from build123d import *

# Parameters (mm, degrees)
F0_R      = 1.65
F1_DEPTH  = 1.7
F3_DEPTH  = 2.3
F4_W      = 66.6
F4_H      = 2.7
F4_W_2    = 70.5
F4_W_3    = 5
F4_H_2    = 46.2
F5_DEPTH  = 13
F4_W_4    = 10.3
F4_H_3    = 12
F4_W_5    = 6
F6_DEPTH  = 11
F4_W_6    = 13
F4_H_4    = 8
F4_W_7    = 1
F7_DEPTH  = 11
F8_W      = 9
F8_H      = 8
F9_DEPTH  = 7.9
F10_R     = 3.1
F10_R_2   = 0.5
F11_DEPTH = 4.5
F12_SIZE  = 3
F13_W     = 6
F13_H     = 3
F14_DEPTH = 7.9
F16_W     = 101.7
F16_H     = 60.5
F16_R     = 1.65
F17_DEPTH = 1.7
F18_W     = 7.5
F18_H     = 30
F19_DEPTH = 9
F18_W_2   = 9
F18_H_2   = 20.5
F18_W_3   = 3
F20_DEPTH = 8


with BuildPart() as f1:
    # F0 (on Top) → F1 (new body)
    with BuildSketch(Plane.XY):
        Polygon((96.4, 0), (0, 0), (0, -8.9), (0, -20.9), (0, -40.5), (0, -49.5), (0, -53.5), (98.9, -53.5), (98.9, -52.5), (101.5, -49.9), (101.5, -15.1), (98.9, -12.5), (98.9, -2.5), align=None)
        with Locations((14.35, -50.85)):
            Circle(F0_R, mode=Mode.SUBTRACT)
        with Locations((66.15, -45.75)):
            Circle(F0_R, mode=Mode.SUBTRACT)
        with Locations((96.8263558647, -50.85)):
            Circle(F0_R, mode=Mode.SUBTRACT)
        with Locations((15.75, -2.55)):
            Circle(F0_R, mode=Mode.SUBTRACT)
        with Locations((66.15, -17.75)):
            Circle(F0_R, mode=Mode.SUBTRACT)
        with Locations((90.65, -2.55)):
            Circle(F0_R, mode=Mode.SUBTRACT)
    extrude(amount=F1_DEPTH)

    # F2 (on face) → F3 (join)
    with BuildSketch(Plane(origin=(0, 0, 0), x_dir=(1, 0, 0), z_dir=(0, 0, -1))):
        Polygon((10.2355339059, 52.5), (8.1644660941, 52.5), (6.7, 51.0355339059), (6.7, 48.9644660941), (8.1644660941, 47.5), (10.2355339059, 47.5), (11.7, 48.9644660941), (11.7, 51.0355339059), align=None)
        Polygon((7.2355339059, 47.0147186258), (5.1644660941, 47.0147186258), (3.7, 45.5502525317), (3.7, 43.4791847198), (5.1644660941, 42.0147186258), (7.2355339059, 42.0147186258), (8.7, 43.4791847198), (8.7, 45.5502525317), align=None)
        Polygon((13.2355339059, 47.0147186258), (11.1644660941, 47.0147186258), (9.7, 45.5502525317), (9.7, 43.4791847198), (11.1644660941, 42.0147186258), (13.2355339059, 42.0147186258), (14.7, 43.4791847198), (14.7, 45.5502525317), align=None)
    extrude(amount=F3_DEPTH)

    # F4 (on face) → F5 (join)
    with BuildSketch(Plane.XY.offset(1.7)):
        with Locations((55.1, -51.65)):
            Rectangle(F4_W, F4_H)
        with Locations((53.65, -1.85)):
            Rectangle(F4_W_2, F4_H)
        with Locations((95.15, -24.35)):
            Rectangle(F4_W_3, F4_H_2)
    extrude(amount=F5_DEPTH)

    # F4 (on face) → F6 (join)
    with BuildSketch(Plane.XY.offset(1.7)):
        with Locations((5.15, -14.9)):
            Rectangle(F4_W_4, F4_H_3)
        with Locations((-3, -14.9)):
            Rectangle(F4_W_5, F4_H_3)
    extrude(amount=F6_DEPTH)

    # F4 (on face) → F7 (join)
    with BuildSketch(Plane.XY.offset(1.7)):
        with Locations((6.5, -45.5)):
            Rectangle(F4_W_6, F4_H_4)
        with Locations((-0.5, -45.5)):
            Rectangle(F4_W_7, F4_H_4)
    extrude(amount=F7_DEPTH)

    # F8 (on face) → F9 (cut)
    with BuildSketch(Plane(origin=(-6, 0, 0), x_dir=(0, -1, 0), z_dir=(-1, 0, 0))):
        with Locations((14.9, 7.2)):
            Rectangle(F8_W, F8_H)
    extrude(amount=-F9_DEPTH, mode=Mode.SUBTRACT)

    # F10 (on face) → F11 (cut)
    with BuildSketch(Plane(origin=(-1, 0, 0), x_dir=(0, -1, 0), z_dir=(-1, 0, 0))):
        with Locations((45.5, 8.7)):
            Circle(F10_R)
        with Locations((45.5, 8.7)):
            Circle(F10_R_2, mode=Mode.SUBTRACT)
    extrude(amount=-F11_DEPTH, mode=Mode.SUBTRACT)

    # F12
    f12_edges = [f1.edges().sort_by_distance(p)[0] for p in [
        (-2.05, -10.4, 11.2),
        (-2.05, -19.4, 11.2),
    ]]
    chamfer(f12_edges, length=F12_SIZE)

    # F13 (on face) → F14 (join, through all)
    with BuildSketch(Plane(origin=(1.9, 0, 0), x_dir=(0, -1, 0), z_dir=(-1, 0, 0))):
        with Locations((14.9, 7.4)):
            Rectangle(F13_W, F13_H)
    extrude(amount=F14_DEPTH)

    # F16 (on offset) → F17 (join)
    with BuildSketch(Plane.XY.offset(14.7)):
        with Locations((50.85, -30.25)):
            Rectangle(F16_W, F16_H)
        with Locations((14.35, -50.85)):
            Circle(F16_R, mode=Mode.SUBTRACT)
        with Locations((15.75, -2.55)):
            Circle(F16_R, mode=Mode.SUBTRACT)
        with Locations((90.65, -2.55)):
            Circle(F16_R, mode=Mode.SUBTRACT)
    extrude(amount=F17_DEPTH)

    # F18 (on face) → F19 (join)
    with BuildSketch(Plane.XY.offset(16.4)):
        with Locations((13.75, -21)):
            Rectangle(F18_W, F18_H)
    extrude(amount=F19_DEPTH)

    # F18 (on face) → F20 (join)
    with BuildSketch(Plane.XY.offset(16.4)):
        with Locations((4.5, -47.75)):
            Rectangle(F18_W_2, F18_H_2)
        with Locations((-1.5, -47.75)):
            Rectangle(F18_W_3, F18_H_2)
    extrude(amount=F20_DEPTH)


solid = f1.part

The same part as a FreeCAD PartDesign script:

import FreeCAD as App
import Part
import Sketcher

V = App.Vector
Q = App.Units.Quantity


def edges_at(feature, points):
    """Names of the edges that pass closest to the given points."""
    edges = feature.Shape.Edges
    near = lambda p: min(range(len(edges)), key=lambda i: edges[i].distToShape(Part.Vertex(*p))[0])
    return sorted({f"Edge{near(p) + 1}" for p in points})

doc = App.newDocument("Part")
body = doc.addObject("PartDesign::Body", "Body")

# Sketch on XY plane
sketch1 = body.newObject("Sketcher::SketchObject", "Sketch")
sketch1.AttachmentSupport = (doc.getObject("XY_Plane"), [""])
sketch1.MapMode = "FlatFace"
sketch1.addGeometry([
    Part.LineSegment(V(96.4, 0, 0), V(0, 0, 0)),  # 0
    Part.LineSegment(V(0, 0, 0), V(0, -53.5, 0)),  # 1
    Part.LineSegment(V(0, -53.5, 0), V(98.9, -53.5, 0)),  # 2
    Part.LineSegment(V(98.9, -53.5, 0), V(98.9, -52.5, 0)),  # 3
    Part.LineSegment(V(98.9, -52.5, 0), V(101.5, -49.9, 0)),  # 4
    Part.LineSegment(V(101.5, -49.9, 0), V(101.5, -15.1, 0)),  # 5
    Part.LineSegment(V(101.5, -15.1, 0), V(98.9, -12.5, 0)),  # 6
    Part.LineSegment(V(98.9, -12.5, 0), V(98.9, -2.5, 0)),  # 7
    Part.LineSegment(V(98.9, -2.5, 0), V(96.4, 0, 0)),  # 8
    Part.Circle(V(14.3, -50.9, 0), V(0, 0, 1), 1.6),  # 9
    Part.Circle(V(66.2, -45.8, 0), V(0, 0, 1), 1.6),  # 10
    Part.Circle(V(96.8, -50.9, 0), V(0, 0, 1), 1.6),  # 11
    Part.Circle(V(15.8, -2.5, 0), V(0, 0, 1), 1.6),  # 12
    Part.Circle(V(66.2, -17.8, 0), V(0, 0, 1), 1.6),  # 13
    Part.Circle(V(90.7, -2.5, 0), V(0, 0, 1), 1.6),  # 14
], False)
sketch1.addConstraint([
    Sketcher.Constraint("Coincident", 0, 2, 1, 1),
    Sketcher.Constraint("Coincident", 1, 2, 2, 1),
    Sketcher.Constraint("Coincident", 2, 2, 3, 1),
    Sketcher.Constraint("Coincident", 3, 2, 4, 1),
    Sketcher.Constraint("Coincident", 4, 2, 5, 1),
    Sketcher.Constraint("Coincident", 5, 2, 6, 1),
    Sketcher.Constraint("Coincident", 6, 2, 7, 1),
    Sketcher.Constraint("Coincident", 7, 2, 8, 1),
    Sketcher.Constraint("Coincident", 8, 2, 0, 1),
    Sketcher.Constraint("Horizontal", 0),
    Sketcher.Constraint("Vertical", 1),
    Sketcher.Constraint("Horizontal", 2),
    Sketcher.Constraint("Vertical", 3),
    Sketcher.Constraint("Vertical", 5),
    Sketcher.Constraint("Vertical", 7),
    Sketcher.Constraint("Coincident", 0, 2, -1, 1),
    Sketcher.Constraint("Equal", 9, 10),
    Sketcher.Constraint("Equal", 10, 11),
    Sketcher.Constraint("Equal", 11, 12),
    Sketcher.Constraint("Equal", 12, 13),
    Sketcher.Constraint("Equal", 13, 14),
    Sketcher.Constraint("Perpendicular", 4, 6),
    Sketcher.Constraint("Parallel", 6, 8),
    Sketcher.Constraint("Horizontal", 9, 3, 11, 3),
    Sketcher.Constraint("Horizontal", 12, 3, 14, 3),
    Sketcher.Constraint("Vertical", 10, 3, 13, 3),
    Sketcher.Constraint("Vertical", 3, 2, 6, 2),
    Sketcher.Constraint("Equal", 4, 6),
    Sketcher.Constraint("Diameter", 9, Q("3.3 mm")),
    Sketcher.Constraint("DistanceY", 3, 1, 3, 2, Q("1 mm")),
    Sketcher.Constraint("DistanceY", 7, 1, 7, 2, Q("10 mm")),
    Sketcher.Constraint("DistanceX", 0, 2, 0, 1, Q("96.4 mm")),
    Sketcher.Constraint("DistanceX", 2, 1, 2, 2, Q("98.9 mm")),
    Sketcher.Constraint("DistanceY", 1, 2, 1, 1, Q("53.5 mm")),
    Sketcher.Constraint("DistanceY", 5, 1, 5, 2, Q("34.8 mm")),
    Sketcher.Constraint("DistanceY", 10, 3, 13, 3, Q("28 mm")),
    Sketcher.Constraint("DistanceX", 9, 3, 10, 3, Q("51.8 mm")),
    Sketcher.Constraint("DistanceY", 9, 3, 10, 3, Q("5.1 mm")),
    Sketcher.Constraint("DistanceX", 9, 3, 12, 3, Q("1.4 mm")),
    Sketcher.Constraint("DistanceY", 9, 3, 12, 3, Q("48.3 mm")),
    Sketcher.Constraint("DistanceX", 13, 3, 14, 3, Q("24.5 mm")),
    Sketcher.Constraint("DistanceX", -1, 1, 9, 3, Q("14.35 mm")),
    Sketcher.Constraint("DistanceY", 9, 3, -1, 1, Q("50.85 mm")),
    Sketcher.Constraint("DistanceX", -1, 1, 11, 3, Q("96.826356 mm")),
])
pad1 = body.newObject("PartDesign::Pad", "Pad")
pad1.Profile = sketch1
pad1.Length = 1.7

# Sketch on XY plane
sketch2 = body.newObject("Sketcher::SketchObject", "Sketch001")
sketch2.AttachmentSupport = (doc.getObject("XY_Plane"), [""])
sketch2.MapMode = "FlatFace"
sketch2.addGeometry([
    Part.LineSegment(V(10.2, -52.5, 0), V(8.2, -52.5, 0)),  # 0
    Part.LineSegment(V(8.2, -52.5, 0), V(6.7, -51, 0)),  # 1
    Part.LineSegment(V(6.7, -51, 0), V(6.7, -49, 0)),  # 2
    Part.LineSegment(V(6.7, -49, 0), V(8.2, -47.5, 0)),  # 3
    Part.LineSegment(V(8.2, -47.5, 0), V(10.2, -47.5, 0)),  # 4
    Part.LineSegment(V(10.2, -47.5, 0), V(11.7, -49, 0)),  # 5
    Part.LineSegment(V(11.7, -49, 0), V(11.7, -51, 0)),  # 6
    Part.LineSegment(V(11.7, -51, 0), V(10.2, -52.5, 0)),  # 7
    Part.LineSegment(V(7.2, -47, 0), V(5.2, -47, 0)),  # 8
    Part.LineSegment(V(5.2, -47, 0), V(3.7, -45.6, 0)),  # 9
    Part.LineSegment(V(3.7, -45.6, 0), V(3.7, -43.5, 0)),  # 10
    Part.LineSegment(V(3.7, -43.5, 0), V(5.2, -42, 0)),  # 11
    Part.LineSegment(V(5.2, -42, 0), V(7.2, -42, 0)),  # 12
    Part.LineSegment(V(7.2, -42, 0), V(8.7, -43.5, 0)),  # 13
    Part.LineSegment(V(8.7, -43.5, 0), V(8.7, -45.6, 0)),  # 14
    Part.LineSegment(V(8.7, -45.6, 0), V(7.2, -47, 0)),  # 15
    Part.LineSegment(V(13.2, -47, 0), V(11.2, -47, 0)),  # 16
    Part.LineSegment(V(11.2, -47, 0), V(9.7, -45.6, 0)),  # 17
    Part.LineSegment(V(9.7, -45.6, 0), V(9.7, -43.5, 0)),  # 18
    Part.LineSegment(V(9.7, -43.5, 0), V(11.2, -42, 0)),  # 19
    Part.LineSegment(V(11.2, -42, 0), V(13.2, -42, 0)),  # 20
    Part.LineSegment(V(13.2, -42, 0), V(14.7, -43.5, 0)),  # 21
    Part.LineSegment(V(14.7, -43.5, 0), V(14.7, -45.6, 0)),  # 22
    Part.LineSegment(V(14.7, -45.6, 0), V(13.2, -47, 0)),  # 23
], False)
sketch2.addConstraint([
    Sketcher.Constraint("Coincident", 0, 2, 1, 1),
    Sketcher.Constraint("Coincident", 1, 2, 2, 1),
    Sketcher.Constraint("Coincident", 2, 2, 3, 1),
    Sketcher.Constraint("Coincident", 3, 2, 4, 1),
    Sketcher.Constraint("Coincident", 4, 2, 5, 1),
    Sketcher.Constraint("Coincident", 5, 2, 6, 1),
    Sketcher.Constraint("Coincident", 6, 2, 7, 1),
    Sketcher.Constraint("Coincident", 7, 2, 0, 1),
    Sketcher.Constraint("Coincident", 8, 2, 9, 1),
    Sketcher.Constraint("Coincident", 9, 2, 10, 1),
    Sketcher.Constraint("Coincident", 10, 2, 11, 1),
    Sketcher.Constraint("Coincident", 11, 2, 12, 1),
    Sketcher.Constraint("Coincident", 12, 2, 13, 1),
    Sketcher.Constraint("Coincident", 13, 2, 14, 1),
    Sketcher.Constraint("Coincident", 14, 2, 15, 1),
    Sketcher.Constraint("Coincident", 15, 2, 8, 1),
    Sketcher.Constraint("Coincident", 16, 2, 17, 1),
    Sketcher.Constraint("Coincident", 17, 2, 18, 1),
    Sketcher.Constraint("Coincident", 18, 2, 19, 1),
    Sketcher.Constraint("Coincident", 19, 2, 20, 1),
    Sketcher.Constraint("Coincident", 20, 2, 21, 1),
    Sketcher.Constraint("Coincident", 21, 2, 22, 1),
    Sketcher.Constraint("Coincident", 22, 2, 23, 1),
    Sketcher.Constraint("Coincident", 23, 2, 16, 1),
    Sketcher.Constraint("Horizontal", 0),
    Sketcher.Constraint("Vertical", 2),
    Sketcher.Constraint("Horizontal", 4),
    Sketcher.Constraint("Vertical", 6),
    Sketcher.Constraint("Horizontal", 8),
    Sketcher.Constraint("Vertical", 10),
    Sketcher.Constraint("Horizontal", 12),
    Sketcher.Constraint("Vertical", 14),
    Sketcher.Constraint("Horizontal", 16),
    Sketcher.Constraint("Vertical", 18),
    Sketcher.Constraint("Horizontal", 20),
    Sketcher.Constraint("Vertical", 22),
    Sketcher.Constraint("Perpendicular", 1, 3),
    Sketcher.Constraint("Perpendicular", 3, 5),
    Sketcher.Constraint("Perpendicular", 5, 7),
    Sketcher.Constraint("Perpendicular", 7, 9),
    Sketcher.Constraint("Perpendicular", 9, 11),
    Sketcher.Constraint("Perpendicular", 11, 13),
    Sketcher.Constraint("Perpendicular", 13, 15),
    Sketcher.Constraint("Perpendicular", 15, 17),
    Sketcher.Constraint("Perpendicular", 17, 19),
    Sketcher.Constraint("Perpendicular", 19, 21),
    Sketcher.Constraint("Perpendicular", 21, 23),
    Sketcher.Constraint("Horizontal", 2, 2, 5, 2),
    Sketcher.Constraint("Horizontal", 1, 2, 6, 2),
    Sketcher.Constraint("Horizontal", 10, 2, 13, 2),
    Sketcher.Constraint("Horizontal", 9, 2, 14, 2),
    Sketcher.Constraint("Horizontal", 15, 2, 16, 2),
    Sketcher.Constraint("Horizontal", 14, 2, 17, 2),
    Sketcher.Constraint("Horizontal", 13, 2, 18, 2),
    Sketcher.Constraint("Horizontal", 12, 2, 19, 2),
    Sketcher.Constraint("Horizontal", 18, 2, 21, 2),
    Sketcher.Constraint("Horizontal", 17, 2, 22, 2),
    Sketcher.Constraint("Vertical", 0, 2, 3, 2),
    Sketcher.Constraint("Vertical", 4, 2, 7, 2),
    Sketcher.Constraint("Vertical", 8, 2, 11, 2),
    Sketcher.Constraint("Equal", 4, 8),
    Sketcher.Constraint("Equal", 12, 16),
    Sketcher.Constraint("Equal", 20, 2),
    Sketcher.Constraint("Equal", 6, 10),
    Sketcher.Constraint("Equal", 7, 9),
    Sketcher.Constraint("DistanceY", 0, 2, 3, 2, Q("5 mm")),
    Sketcher.Constraint("DistanceX", 8, 2, 3, 2, Q("3 mm")),
    Sketcher.Constraint("DistanceX", 3, 2, 16, 2, Q("3 mm")),
    Sketcher.Constraint("DistanceY", 0, 2, -1, 1, Q("52.5 mm")),
    Sketcher.Constraint("DistanceX", -1, 1, 1, 2, Q("6.7 mm")),
    Sketcher.Constraint("DistanceX", 0, 2, 0, 1, Q("2.071068 mm")),
    Sketcher.Constraint("DistanceY", 8, 2, -1, 1, Q("47.014719 mm")),
])
pad2 = body.newObject("PartDesign::Pad", "Pad001")
pad2.Profile = sketch2
pad2.Length = 2.3
pad2.Reversed = True

# Sketch on XY plane
sketch3 = body.newObject("Sketcher::SketchObject", "Sketch002")
sketch3.AttachmentSupport = (doc.getObject("XY_Plane"), [""])
sketch3.MapMode = "FlatFace"
sketch3.AttachmentOffset = App.Placement(V(0, 0, 1.7), App.Rotation())
sketch3.addGeometry([
    Part.LineSegment(V(21.8, -50.3, 0), V(21.8, -53, 0)),  # 0
    Part.LineSegment(V(21.8, -53, 0), V(88.4, -53, 0)),  # 1
    Part.LineSegment(V(88.4, -53, 0), V(88.4, -50.3, 0)),  # 2
    Part.LineSegment(V(88.4, -50.3, 0), V(21.8, -50.3, 0)),  # 3
    Part.LineSegment(V(18.4, -0.5, 0), V(18.4, -3.2, 0)),  # 4
    Part.LineSegment(V(18.4, -3.2, 0), V(88.9, -3.2, 0)),  # 5
    Part.LineSegment(V(88.9, -3.2, 0), V(88.9, -0.5, 0)),  # 6
    Part.LineSegment(V(88.9, -0.5, 0), V(18.4, -0.5, 0)),  # 7
    Part.LineSegment(V(92.7, -1.2, 0), V(92.7, -47.5, 0)),  # 8
    Part.LineSegment(V(92.7, -47.5, 0), V(97.7, -47.5, 0)),  # 9
    Part.LineSegment(V(97.7, -47.5, 0), V(97.7, -1.2, 0)),  # 10
    Part.LineSegment(V(97.7, -1.2, 0), V(92.7, -1.2, 0)),  # 11
], False)
sketch3.addConstraint([
    Sketcher.Constraint("Coincident", 0, 2, 1, 1),
    Sketcher.Constraint("Coincident", 1, 2, 2, 1),
    Sketcher.Constraint("Coincident", 2, 2, 3, 1),
    Sketcher.Constraint("Coincident", 3, 2, 0, 1),
    Sketcher.Constraint("Coincident", 4, 2, 5, 1),
    Sketcher.Constraint("Coincident", 5, 2, 6, 1),
    Sketcher.Constraint("Coincident", 6, 2, 7, 1),
    Sketcher.Constraint("Coincident", 7, 2, 4, 1),
    Sketcher.Constraint("Coincident", 8, 2, 9, 1),
    Sketcher.Constraint("Coincident", 9, 2, 10, 1),
    Sketcher.Constraint("Coincident", 10, 2, 11, 1),
    Sketcher.Constraint("Coincident", 11, 2, 8, 1),
    Sketcher.Constraint("Vertical", 0),
    Sketcher.Constraint("Horizontal", 1),
    Sketcher.Constraint("Vertical", 2),
    Sketcher.Constraint("Horizontal", 3),
    Sketcher.Constraint("Vertical", 4),
    Sketcher.Constraint("Horizontal", 5),
    Sketcher.Constraint("Vertical", 6),
    Sketcher.Constraint("Horizontal", 7),
    Sketcher.Constraint("Vertical", 8),
    Sketcher.Constraint("Horizontal", 9),
    Sketcher.Constraint("Vertical", 10),
    Sketcher.Constraint("Horizontal", 11),
    Sketcher.Constraint("Equal", 2, 4),
    Sketcher.Constraint("DistanceX", 9, 1, 9, 2, Q("5 mm")),
    Sketcher.Constraint("DistanceX", 1, 1, 1, 2, Q("66.6 mm")),
    Sketcher.Constraint("DistanceX", 5, 1, 5, 2, Q("70.5 mm")),
    Sketcher.Constraint("DistanceY", 0, 2, 0, 1, Q("2.7 mm")),
    Sketcher.Constraint("DistanceY", 8, 2, 8, 1, Q("46.2 mm")),
    Sketcher.Constraint("DistanceY", 0, 2, -1, 1, Q("53 mm")),
    Sketcher.Constraint("DistanceX", 4, 2, 2, 2, Q("70 mm")),
    Sketcher.Constraint("DistanceX", -1, 1, 0, 2, Q("21.8 mm")),
    Sketcher.Constraint("DistanceY", 4, 2, -1, 1, Q("3.2 mm")),
    Sketcher.Constraint("DistanceX", -1, 1, 8, 2, Q("92.65 mm")),
    Sketcher.Constraint("DistanceY", 8, 2, -1, 1, Q("47.45 mm")),
])
pad3 = body.newObject("PartDesign::Pad", "Pad002")
pad3.Profile = sketch3
pad3.Length = 13

# Sketch on XY plane
sketch4 = body.newObject("Sketcher::SketchObject", "Sketch003")
sketch4.AttachmentSupport = (doc.getObject("XY_Plane"), [""])
sketch4.MapMode = "FlatFace"
sketch4.AttachmentOffset = App.Placement(V(0, 0, 1.7), App.Rotation())
sketch4.addGeometry([
    Part.LineSegment(V(10, -21, 0), V(10, -9, 0)),
    Part.LineSegment(V(10, -9, 0), V(-6, -9, 0)),
    Part.LineSegment(V(-6, -9, 0), V(-6, -21, 0)),
    Part.LineSegment(V(-6, -21, 0), V(10, -21, 0)),
], False)
sketch4.addConstraint([
    Sketcher.Constraint("Coincident", 0, 2, 1, 1),
    Sketcher.Constraint("Coincident", 1, 2, 2, 1),
    Sketcher.Constraint("Coincident", 2, 2, 3, 1),
    Sketcher.Constraint("Coincident", 3, 2, 0, 1),
    Sketcher.Constraint("Vertical", 0),
    Sketcher.Constraint("Horizontal", 1),
    Sketcher.Constraint("Vertical", 2),
    Sketcher.Constraint("Horizontal", 3),
    Sketcher.Constraint("DistanceY", 0, 1, 0, 2, Q("12 mm")),
    Sketcher.Constraint("DistanceX", 1, 2, 1, 1, Q("16.3 mm")),
    Sketcher.Constraint("DistanceX", 1, 2, -1, 1, Q("6 mm")),
    Sketcher.Constraint("DistanceY", 0, 2, -1, 1, Q("8.9 mm")),
])
pad4 = body.newObject("PartDesign::Pad", "Pad003")
pad4.Profile = sketch4
pad4.Length = 11

# Sketch on XY plane
sketch5 = body.newObject("Sketcher::SketchObject", "Sketch004")
sketch5.AttachmentSupport = (doc.getObject("XY_Plane"), [""])
sketch5.MapMode = "FlatFace"
sketch5.AttachmentOffset = App.Placement(V(0, 0, 1.7), App.Rotation())
sketch5.addGeometry([
    Part.LineSegment(V(13, -50, 0), V(13, -42, 0)),
    Part.LineSegment(V(13, -42, 0), V(-1, -42, 0)),
    Part.LineSegment(V(-1, -42, 0), V(-1, -50, 0)),
    Part.LineSegment(V(-1, -50, 0), V(13, -50, 0)),
], False)
sketch5.addConstraint([
    Sketcher.Constraint("Coincident", 0, 2, 1, 1),
    Sketcher.Constraint("Coincident", 1, 2, 2, 1),
    Sketcher.Constraint("Coincident", 2, 2, 3, 1),
    Sketcher.Constraint("Coincident", 3, 2, 0, 1),
    Sketcher.Constraint("Vertical", 0),
    Sketcher.Constraint("Horizontal", 1),
    Sketcher.Constraint("Vertical", 2),
    Sketcher.Constraint("Horizontal", 3),
    Sketcher.Constraint("DistanceX", 1, 2, 1, 1, Q("14 mm")),
    Sketcher.Constraint("DistanceY", 0, 1, 0, 2, Q("8 mm")),
    Sketcher.Constraint("DistanceX", -1, 1, 0, 2, Q("13 mm")),
    Sketcher.Constraint("DistanceY", 0, 2, -1, 1, Q("41.5 mm")),
])
pad5 = body.newObject("PartDesign::Pad", "Pad004")
pad5.Profile = sketch5
pad5.Length = 11

# Sketch on YZ plane
sketch6 = body.newObject("Sketcher::SketchObject", "Sketch005")
sketch6.AttachmentSupport = (doc.getObject("YZ_Plane"), [""])
sketch6.MapMode = "FlatFace"
sketch6.AttachmentOffset = App.Placement(V(0, 0, -6), App.Rotation())
sketch6.addGeometry([
    Part.LineSegment(V(-10, 11, 0), V(-10, 3, 0)),
    Part.LineSegment(V(-10, 3, 0), V(-19, 3, 0)),
    Part.LineSegment(V(-19, 3, 0), V(-19, 11, 0)),
    Part.LineSegment(V(-19, 11, 0), V(-10, 11, 0)),
], False)
sketch6.addConstraint([
    Sketcher.Constraint("Coincident", 0, 2, 1, 1),
    Sketcher.Constraint("Coincident", 1, 2, 2, 1),
    Sketcher.Constraint("Coincident", 2, 2, 3, 1),
    Sketcher.Constraint("Coincident", 3, 2, 0, 1),
    Sketcher.Constraint("Vertical", 0),
    Sketcher.Constraint("Horizontal", 1),
    Sketcher.Constraint("Vertical", 2),
    Sketcher.Constraint("Horizontal", 3),
    Sketcher.Constraint("DistanceX", 1, 2, 1, 1, Q("9 mm")),
    Sketcher.Constraint("DistanceY", 0, 2, 0, 1, Q("8 mm")),
    Sketcher.Constraint("DistanceX", 0, 2, -1, 1, Q("10.4 mm")),
    Sketcher.Constraint("DistanceY", -1, 1, 0, 2, Q("3.2 mm")),
])
pocket1 = body.newObject("PartDesign::Pocket", "Pocket")
pocket1.Profile = sketch6
pocket1.Length = 7.9
pocket1.Reversed = True

# Sketch on YZ plane
sketch7 = body.newObject("Sketcher::SketchObject", "Sketch006")
sketch7.AttachmentSupport = (doc.getObject("YZ_Plane"), [""])
sketch7.MapMode = "FlatFace"
sketch7.AttachmentOffset = App.Placement(V(0, 0, -1), App.Rotation())
sketch7.addGeometry([
    Part.Circle(V(-45.5, 8.7, 0), V(0, 0, 1), 3.1),
    Part.Circle(V(-45.5, 8.7, 0), V(0, 0, 1), 0.5),
], False)
sketch7.addConstraint([
    Sketcher.Constraint("Coincident", 1, 3, 0, 3),
    Sketcher.Constraint("Diameter", 1, Q("1 mm")),
    Sketcher.Constraint("Diameter", 0, Q("6.2 mm")),
    Sketcher.Constraint("DistanceX", 0, 3, -1, 1, Q("45.5 mm")),
    Sketcher.Constraint("DistanceY", -1, 1, 0, 3, Q("8.7 mm")),
])
pocket2 = body.newObject("PartDesign::Pocket", "Pocket001")
pocket2.Profile = sketch7
pocket2.Length = 4.5
pocket2.Reversed = True
doc.recompute()

chamfer = body.newObject("PartDesign::Chamfer", "Chamfer")
chamfer.Base = (pocket2, edges_at(pocket2, [(-2.05, -10.4, 11.2), (-2.05, -19.4, 11.2)]))
chamfer.Size = 3

# Sketch on YZ plane
sketch8 = body.newObject("Sketcher::SketchObject", "Sketch007")
sketch8.AttachmentSupport = (doc.getObject("YZ_Plane"), [""])
sketch8.MapMode = "FlatFace"
sketch8.AttachmentOffset = App.Placement(V(0, 0, 1.9), App.Rotation())
sketch8.addGeometry([
    Part.LineSegment(V(-11.9, 8.9, 0), V(-11.9, 5.9, 0)),
    Part.LineSegment(V(-11.9, 5.9, 0), V(-17.9, 5.9, 0)),
    Part.LineSegment(V(-17.9, 5.9, 0), V(-17.9, 8.9, 0)),
    Part.LineSegment(V(-17.9, 8.9, 0), V(-11.9, 8.9, 0)),
], False)
sketch8.addConstraint([
    Sketcher.Constraint("Coincident", 0, 2, 1, 1),
    Sketcher.Constraint("Coincident", 1, 2, 2, 1),
    Sketcher.Constraint("Coincident", 2, 2, 3, 1),
    Sketcher.Constraint("Coincident", 3, 2, 0, 1),
    Sketcher.Constraint("Vertical", 0),
    Sketcher.Constraint("Horizontal", 1),
    Sketcher.Constraint("Vertical", 2),
    Sketcher.Constraint("Horizontal", 3),
    Sketcher.Constraint("DistanceX", 1, 2, 1, 1, Q("6 mm")),
    Sketcher.Constraint("DistanceY", 0, 2, 0, 1, Q("3 mm")),
    Sketcher.Constraint("DistanceX", 0, 2, -1, 1, Q("11.9 mm")),
    Sketcher.Constraint("DistanceY", -1, 1, 0, 2, Q("5.9 mm")),
])
pad6 = body.newObject("PartDesign::Pad", "Pad005")
pad6.Profile = sketch8
pad6.Length = 7.9
pad6.Reversed = True

# Sketch on XY plane
sketch9 = body.newObject("Sketcher::SketchObject", "Sketch008")
sketch9.AttachmentSupport = (doc.getObject("XY_Plane"), [""])
sketch9.MapMode = "FlatFace"
sketch9.AttachmentOffset = App.Placement(V(0, 0, 14.7), App.Rotation())
sketch9.addGeometry([
    Part.LineSegment(V(0, 0, 0), V(0, -60.5, 0)),  # 0
    Part.LineSegment(V(0, -60.5, 0), V(101.7, -60.5, 0)),  # 1
    Part.LineSegment(V(101.7, -60.5, 0), V(101.7, 0, 0)),  # 2
    Part.LineSegment(V(101.7, 0, 0), V(0, 0, 0)),  # 3
    Part.Circle(V(14.3, -50.9, 0), V(0, 0, 1), 1.6),  # 4
    Part.Circle(V(15.8, -2.5, 0), V(0, 0, 1), 1.6),  # 5
    Part.Circle(V(90.7, -2.5, 0), V(0, 0, 1), 1.6),  # 6
], False)
sketch9.addConstraint([
    Sketcher.Constraint("Coincident", 0, 2, 1, 1),
    Sketcher.Constraint("Coincident", 1, 2, 2, 1),
    Sketcher.Constraint("Coincident", 2, 2, 3, 1),
    Sketcher.Constraint("Coincident", 3, 2, 0, 1),
    Sketcher.Constraint("Vertical", 0),
    Sketcher.Constraint("Horizontal", 1),
    Sketcher.Constraint("Vertical", 2),
    Sketcher.Constraint("Horizontal", 3),
    Sketcher.Constraint("Coincident", 3, 2, -1, 1),
    Sketcher.Constraint("Equal", 4, 5),
    Sketcher.Constraint("Equal", 5, 6),
    Sketcher.Constraint("Horizontal", 5, 3, 6, 3),
    Sketcher.Constraint("Diameter", 4, Q("3.3 mm")),
    Sketcher.Constraint("DistanceX", 1, 1, 1, 2, Q("101.7 mm")),
    Sketcher.Constraint("DistanceY", 0, 2, 0, 1, Q("60.5 mm")),
    Sketcher.Constraint("DistanceX", 4, 3, 5, 3, Q("1.4 mm")),
    Sketcher.Constraint("DistanceY", 4, 3, 5, 3, Q("48.3 mm")),
    Sketcher.Constraint("DistanceX", 5, 3, 6, 3, Q("74.9 mm")),
    Sketcher.Constraint("DistanceX", -1, 1, 4, 3, Q("14.35 mm")),
    Sketcher.Constraint("DistanceY", 4, 3, -1, 1, Q("50.85 mm")),
])
pad7 = body.newObject("PartDesign::Pad", "Pad006")
pad7.Profile = sketch9
pad7.Length = 1.7

# Sketch on XY plane
sketch10 = body.newObject("Sketcher::SketchObject", "Sketch009")
sketch10.AttachmentSupport = (doc.getObject("XY_Plane"), [""])
sketch10.MapMode = "FlatFace"
sketch10.AttachmentOffset = App.Placement(V(0, 0, 16.4), App.Rotation())
sketch10.addGeometry([
    Part.LineSegment(V(10, -6, 0), V(10, -36, 0)),
    Part.LineSegment(V(10, -36, 0), V(18, -36, 0)),
    Part.LineSegment(V(18, -36, 0), V(18, -6, 0)),
    Part.LineSegment(V(18, -6, 0), V(10, -6, 0)),
], False)
sketch10.addConstraint([
    Sketcher.Constraint("Coincident", 0, 2, 1, 1),
    Sketcher.Constraint("Coincident", 1, 2, 2, 1),
    Sketcher.Constraint("Coincident", 2, 2, 3, 1),
    Sketcher.Constraint("Coincident", 3, 2, 0, 1),
    Sketcher.Constraint("Vertical", 0),
    Sketcher.Constraint("Horizontal", 1),
    Sketcher.Constraint("Vertical", 2),
    Sketcher.Constraint("Horizontal", 3),
    Sketcher.Constraint("DistanceY", 0, 2, 0, 1, Q("30 mm")),
    Sketcher.Constraint("DistanceX", 1, 1, 1, 2, Q("7.5 mm")),
    Sketcher.Constraint("DistanceX", -1, 1, 0, 2, Q("10 mm")),
    Sketcher.Constraint("DistanceY", 0, 2, -1, 1, Q("36 mm")),
])
pad8 = body.newObject("PartDesign::Pad", "Pad007")
pad8.Profile = sketch10
pad8.Length = 9

# Sketch on XY plane
sketch11 = body.newObject("Sketcher::SketchObject", "Sketch010")
sketch11.AttachmentSupport = (doc.getObject("XY_Plane"), [""])
sketch11.MapMode = "FlatFace"
sketch11.AttachmentOffset = App.Placement(V(0, 0, 16.4), App.Rotation())
sketch11.addGeometry([
    Part.LineSegment(V(9, -58, 0), V(9, -38, 0)),
    Part.LineSegment(V(9, -38, 0), V(-3, -38, 0)),
    Part.LineSegment(V(-3, -38, 0), V(-3, -58, 0)),
    Part.LineSegment(V(-3, -58, 0), V(9, -58, 0)),
], False)
sketch11.addConstraint([
    Sketcher.Constraint("Coincident", 0, 2, 1, 1),
    Sketcher.Constraint("Coincident", 1, 2, 2, 1),
    Sketcher.Constraint("Coincident", 2, 2, 3, 1),
    Sketcher.Constraint("Coincident", 3, 2, 0, 1),
    Sketcher.Constraint("Vertical", 0),
    Sketcher.Constraint("Horizontal", 1),
    Sketcher.Constraint("Vertical", 2),
    Sketcher.Constraint("Horizontal", 3),
    Sketcher.Constraint("DistanceX", 1, 2, 1, 1, Q("12 mm")),
    Sketcher.Constraint("DistanceY", 0, 1, 0, 2, Q("20.5 mm")),
    Sketcher.Constraint("DistanceX", -1, 1, 0, 2, Q("9 mm")),
    Sketcher.Constraint("DistanceY", 2, 2, -1, 1, Q("58 mm")),
])
pad9 = body.newObject("PartDesign::Pad", "Pad008")
pad9.Profile = sketch11
pad9.Length = 8

doc.recompute()
